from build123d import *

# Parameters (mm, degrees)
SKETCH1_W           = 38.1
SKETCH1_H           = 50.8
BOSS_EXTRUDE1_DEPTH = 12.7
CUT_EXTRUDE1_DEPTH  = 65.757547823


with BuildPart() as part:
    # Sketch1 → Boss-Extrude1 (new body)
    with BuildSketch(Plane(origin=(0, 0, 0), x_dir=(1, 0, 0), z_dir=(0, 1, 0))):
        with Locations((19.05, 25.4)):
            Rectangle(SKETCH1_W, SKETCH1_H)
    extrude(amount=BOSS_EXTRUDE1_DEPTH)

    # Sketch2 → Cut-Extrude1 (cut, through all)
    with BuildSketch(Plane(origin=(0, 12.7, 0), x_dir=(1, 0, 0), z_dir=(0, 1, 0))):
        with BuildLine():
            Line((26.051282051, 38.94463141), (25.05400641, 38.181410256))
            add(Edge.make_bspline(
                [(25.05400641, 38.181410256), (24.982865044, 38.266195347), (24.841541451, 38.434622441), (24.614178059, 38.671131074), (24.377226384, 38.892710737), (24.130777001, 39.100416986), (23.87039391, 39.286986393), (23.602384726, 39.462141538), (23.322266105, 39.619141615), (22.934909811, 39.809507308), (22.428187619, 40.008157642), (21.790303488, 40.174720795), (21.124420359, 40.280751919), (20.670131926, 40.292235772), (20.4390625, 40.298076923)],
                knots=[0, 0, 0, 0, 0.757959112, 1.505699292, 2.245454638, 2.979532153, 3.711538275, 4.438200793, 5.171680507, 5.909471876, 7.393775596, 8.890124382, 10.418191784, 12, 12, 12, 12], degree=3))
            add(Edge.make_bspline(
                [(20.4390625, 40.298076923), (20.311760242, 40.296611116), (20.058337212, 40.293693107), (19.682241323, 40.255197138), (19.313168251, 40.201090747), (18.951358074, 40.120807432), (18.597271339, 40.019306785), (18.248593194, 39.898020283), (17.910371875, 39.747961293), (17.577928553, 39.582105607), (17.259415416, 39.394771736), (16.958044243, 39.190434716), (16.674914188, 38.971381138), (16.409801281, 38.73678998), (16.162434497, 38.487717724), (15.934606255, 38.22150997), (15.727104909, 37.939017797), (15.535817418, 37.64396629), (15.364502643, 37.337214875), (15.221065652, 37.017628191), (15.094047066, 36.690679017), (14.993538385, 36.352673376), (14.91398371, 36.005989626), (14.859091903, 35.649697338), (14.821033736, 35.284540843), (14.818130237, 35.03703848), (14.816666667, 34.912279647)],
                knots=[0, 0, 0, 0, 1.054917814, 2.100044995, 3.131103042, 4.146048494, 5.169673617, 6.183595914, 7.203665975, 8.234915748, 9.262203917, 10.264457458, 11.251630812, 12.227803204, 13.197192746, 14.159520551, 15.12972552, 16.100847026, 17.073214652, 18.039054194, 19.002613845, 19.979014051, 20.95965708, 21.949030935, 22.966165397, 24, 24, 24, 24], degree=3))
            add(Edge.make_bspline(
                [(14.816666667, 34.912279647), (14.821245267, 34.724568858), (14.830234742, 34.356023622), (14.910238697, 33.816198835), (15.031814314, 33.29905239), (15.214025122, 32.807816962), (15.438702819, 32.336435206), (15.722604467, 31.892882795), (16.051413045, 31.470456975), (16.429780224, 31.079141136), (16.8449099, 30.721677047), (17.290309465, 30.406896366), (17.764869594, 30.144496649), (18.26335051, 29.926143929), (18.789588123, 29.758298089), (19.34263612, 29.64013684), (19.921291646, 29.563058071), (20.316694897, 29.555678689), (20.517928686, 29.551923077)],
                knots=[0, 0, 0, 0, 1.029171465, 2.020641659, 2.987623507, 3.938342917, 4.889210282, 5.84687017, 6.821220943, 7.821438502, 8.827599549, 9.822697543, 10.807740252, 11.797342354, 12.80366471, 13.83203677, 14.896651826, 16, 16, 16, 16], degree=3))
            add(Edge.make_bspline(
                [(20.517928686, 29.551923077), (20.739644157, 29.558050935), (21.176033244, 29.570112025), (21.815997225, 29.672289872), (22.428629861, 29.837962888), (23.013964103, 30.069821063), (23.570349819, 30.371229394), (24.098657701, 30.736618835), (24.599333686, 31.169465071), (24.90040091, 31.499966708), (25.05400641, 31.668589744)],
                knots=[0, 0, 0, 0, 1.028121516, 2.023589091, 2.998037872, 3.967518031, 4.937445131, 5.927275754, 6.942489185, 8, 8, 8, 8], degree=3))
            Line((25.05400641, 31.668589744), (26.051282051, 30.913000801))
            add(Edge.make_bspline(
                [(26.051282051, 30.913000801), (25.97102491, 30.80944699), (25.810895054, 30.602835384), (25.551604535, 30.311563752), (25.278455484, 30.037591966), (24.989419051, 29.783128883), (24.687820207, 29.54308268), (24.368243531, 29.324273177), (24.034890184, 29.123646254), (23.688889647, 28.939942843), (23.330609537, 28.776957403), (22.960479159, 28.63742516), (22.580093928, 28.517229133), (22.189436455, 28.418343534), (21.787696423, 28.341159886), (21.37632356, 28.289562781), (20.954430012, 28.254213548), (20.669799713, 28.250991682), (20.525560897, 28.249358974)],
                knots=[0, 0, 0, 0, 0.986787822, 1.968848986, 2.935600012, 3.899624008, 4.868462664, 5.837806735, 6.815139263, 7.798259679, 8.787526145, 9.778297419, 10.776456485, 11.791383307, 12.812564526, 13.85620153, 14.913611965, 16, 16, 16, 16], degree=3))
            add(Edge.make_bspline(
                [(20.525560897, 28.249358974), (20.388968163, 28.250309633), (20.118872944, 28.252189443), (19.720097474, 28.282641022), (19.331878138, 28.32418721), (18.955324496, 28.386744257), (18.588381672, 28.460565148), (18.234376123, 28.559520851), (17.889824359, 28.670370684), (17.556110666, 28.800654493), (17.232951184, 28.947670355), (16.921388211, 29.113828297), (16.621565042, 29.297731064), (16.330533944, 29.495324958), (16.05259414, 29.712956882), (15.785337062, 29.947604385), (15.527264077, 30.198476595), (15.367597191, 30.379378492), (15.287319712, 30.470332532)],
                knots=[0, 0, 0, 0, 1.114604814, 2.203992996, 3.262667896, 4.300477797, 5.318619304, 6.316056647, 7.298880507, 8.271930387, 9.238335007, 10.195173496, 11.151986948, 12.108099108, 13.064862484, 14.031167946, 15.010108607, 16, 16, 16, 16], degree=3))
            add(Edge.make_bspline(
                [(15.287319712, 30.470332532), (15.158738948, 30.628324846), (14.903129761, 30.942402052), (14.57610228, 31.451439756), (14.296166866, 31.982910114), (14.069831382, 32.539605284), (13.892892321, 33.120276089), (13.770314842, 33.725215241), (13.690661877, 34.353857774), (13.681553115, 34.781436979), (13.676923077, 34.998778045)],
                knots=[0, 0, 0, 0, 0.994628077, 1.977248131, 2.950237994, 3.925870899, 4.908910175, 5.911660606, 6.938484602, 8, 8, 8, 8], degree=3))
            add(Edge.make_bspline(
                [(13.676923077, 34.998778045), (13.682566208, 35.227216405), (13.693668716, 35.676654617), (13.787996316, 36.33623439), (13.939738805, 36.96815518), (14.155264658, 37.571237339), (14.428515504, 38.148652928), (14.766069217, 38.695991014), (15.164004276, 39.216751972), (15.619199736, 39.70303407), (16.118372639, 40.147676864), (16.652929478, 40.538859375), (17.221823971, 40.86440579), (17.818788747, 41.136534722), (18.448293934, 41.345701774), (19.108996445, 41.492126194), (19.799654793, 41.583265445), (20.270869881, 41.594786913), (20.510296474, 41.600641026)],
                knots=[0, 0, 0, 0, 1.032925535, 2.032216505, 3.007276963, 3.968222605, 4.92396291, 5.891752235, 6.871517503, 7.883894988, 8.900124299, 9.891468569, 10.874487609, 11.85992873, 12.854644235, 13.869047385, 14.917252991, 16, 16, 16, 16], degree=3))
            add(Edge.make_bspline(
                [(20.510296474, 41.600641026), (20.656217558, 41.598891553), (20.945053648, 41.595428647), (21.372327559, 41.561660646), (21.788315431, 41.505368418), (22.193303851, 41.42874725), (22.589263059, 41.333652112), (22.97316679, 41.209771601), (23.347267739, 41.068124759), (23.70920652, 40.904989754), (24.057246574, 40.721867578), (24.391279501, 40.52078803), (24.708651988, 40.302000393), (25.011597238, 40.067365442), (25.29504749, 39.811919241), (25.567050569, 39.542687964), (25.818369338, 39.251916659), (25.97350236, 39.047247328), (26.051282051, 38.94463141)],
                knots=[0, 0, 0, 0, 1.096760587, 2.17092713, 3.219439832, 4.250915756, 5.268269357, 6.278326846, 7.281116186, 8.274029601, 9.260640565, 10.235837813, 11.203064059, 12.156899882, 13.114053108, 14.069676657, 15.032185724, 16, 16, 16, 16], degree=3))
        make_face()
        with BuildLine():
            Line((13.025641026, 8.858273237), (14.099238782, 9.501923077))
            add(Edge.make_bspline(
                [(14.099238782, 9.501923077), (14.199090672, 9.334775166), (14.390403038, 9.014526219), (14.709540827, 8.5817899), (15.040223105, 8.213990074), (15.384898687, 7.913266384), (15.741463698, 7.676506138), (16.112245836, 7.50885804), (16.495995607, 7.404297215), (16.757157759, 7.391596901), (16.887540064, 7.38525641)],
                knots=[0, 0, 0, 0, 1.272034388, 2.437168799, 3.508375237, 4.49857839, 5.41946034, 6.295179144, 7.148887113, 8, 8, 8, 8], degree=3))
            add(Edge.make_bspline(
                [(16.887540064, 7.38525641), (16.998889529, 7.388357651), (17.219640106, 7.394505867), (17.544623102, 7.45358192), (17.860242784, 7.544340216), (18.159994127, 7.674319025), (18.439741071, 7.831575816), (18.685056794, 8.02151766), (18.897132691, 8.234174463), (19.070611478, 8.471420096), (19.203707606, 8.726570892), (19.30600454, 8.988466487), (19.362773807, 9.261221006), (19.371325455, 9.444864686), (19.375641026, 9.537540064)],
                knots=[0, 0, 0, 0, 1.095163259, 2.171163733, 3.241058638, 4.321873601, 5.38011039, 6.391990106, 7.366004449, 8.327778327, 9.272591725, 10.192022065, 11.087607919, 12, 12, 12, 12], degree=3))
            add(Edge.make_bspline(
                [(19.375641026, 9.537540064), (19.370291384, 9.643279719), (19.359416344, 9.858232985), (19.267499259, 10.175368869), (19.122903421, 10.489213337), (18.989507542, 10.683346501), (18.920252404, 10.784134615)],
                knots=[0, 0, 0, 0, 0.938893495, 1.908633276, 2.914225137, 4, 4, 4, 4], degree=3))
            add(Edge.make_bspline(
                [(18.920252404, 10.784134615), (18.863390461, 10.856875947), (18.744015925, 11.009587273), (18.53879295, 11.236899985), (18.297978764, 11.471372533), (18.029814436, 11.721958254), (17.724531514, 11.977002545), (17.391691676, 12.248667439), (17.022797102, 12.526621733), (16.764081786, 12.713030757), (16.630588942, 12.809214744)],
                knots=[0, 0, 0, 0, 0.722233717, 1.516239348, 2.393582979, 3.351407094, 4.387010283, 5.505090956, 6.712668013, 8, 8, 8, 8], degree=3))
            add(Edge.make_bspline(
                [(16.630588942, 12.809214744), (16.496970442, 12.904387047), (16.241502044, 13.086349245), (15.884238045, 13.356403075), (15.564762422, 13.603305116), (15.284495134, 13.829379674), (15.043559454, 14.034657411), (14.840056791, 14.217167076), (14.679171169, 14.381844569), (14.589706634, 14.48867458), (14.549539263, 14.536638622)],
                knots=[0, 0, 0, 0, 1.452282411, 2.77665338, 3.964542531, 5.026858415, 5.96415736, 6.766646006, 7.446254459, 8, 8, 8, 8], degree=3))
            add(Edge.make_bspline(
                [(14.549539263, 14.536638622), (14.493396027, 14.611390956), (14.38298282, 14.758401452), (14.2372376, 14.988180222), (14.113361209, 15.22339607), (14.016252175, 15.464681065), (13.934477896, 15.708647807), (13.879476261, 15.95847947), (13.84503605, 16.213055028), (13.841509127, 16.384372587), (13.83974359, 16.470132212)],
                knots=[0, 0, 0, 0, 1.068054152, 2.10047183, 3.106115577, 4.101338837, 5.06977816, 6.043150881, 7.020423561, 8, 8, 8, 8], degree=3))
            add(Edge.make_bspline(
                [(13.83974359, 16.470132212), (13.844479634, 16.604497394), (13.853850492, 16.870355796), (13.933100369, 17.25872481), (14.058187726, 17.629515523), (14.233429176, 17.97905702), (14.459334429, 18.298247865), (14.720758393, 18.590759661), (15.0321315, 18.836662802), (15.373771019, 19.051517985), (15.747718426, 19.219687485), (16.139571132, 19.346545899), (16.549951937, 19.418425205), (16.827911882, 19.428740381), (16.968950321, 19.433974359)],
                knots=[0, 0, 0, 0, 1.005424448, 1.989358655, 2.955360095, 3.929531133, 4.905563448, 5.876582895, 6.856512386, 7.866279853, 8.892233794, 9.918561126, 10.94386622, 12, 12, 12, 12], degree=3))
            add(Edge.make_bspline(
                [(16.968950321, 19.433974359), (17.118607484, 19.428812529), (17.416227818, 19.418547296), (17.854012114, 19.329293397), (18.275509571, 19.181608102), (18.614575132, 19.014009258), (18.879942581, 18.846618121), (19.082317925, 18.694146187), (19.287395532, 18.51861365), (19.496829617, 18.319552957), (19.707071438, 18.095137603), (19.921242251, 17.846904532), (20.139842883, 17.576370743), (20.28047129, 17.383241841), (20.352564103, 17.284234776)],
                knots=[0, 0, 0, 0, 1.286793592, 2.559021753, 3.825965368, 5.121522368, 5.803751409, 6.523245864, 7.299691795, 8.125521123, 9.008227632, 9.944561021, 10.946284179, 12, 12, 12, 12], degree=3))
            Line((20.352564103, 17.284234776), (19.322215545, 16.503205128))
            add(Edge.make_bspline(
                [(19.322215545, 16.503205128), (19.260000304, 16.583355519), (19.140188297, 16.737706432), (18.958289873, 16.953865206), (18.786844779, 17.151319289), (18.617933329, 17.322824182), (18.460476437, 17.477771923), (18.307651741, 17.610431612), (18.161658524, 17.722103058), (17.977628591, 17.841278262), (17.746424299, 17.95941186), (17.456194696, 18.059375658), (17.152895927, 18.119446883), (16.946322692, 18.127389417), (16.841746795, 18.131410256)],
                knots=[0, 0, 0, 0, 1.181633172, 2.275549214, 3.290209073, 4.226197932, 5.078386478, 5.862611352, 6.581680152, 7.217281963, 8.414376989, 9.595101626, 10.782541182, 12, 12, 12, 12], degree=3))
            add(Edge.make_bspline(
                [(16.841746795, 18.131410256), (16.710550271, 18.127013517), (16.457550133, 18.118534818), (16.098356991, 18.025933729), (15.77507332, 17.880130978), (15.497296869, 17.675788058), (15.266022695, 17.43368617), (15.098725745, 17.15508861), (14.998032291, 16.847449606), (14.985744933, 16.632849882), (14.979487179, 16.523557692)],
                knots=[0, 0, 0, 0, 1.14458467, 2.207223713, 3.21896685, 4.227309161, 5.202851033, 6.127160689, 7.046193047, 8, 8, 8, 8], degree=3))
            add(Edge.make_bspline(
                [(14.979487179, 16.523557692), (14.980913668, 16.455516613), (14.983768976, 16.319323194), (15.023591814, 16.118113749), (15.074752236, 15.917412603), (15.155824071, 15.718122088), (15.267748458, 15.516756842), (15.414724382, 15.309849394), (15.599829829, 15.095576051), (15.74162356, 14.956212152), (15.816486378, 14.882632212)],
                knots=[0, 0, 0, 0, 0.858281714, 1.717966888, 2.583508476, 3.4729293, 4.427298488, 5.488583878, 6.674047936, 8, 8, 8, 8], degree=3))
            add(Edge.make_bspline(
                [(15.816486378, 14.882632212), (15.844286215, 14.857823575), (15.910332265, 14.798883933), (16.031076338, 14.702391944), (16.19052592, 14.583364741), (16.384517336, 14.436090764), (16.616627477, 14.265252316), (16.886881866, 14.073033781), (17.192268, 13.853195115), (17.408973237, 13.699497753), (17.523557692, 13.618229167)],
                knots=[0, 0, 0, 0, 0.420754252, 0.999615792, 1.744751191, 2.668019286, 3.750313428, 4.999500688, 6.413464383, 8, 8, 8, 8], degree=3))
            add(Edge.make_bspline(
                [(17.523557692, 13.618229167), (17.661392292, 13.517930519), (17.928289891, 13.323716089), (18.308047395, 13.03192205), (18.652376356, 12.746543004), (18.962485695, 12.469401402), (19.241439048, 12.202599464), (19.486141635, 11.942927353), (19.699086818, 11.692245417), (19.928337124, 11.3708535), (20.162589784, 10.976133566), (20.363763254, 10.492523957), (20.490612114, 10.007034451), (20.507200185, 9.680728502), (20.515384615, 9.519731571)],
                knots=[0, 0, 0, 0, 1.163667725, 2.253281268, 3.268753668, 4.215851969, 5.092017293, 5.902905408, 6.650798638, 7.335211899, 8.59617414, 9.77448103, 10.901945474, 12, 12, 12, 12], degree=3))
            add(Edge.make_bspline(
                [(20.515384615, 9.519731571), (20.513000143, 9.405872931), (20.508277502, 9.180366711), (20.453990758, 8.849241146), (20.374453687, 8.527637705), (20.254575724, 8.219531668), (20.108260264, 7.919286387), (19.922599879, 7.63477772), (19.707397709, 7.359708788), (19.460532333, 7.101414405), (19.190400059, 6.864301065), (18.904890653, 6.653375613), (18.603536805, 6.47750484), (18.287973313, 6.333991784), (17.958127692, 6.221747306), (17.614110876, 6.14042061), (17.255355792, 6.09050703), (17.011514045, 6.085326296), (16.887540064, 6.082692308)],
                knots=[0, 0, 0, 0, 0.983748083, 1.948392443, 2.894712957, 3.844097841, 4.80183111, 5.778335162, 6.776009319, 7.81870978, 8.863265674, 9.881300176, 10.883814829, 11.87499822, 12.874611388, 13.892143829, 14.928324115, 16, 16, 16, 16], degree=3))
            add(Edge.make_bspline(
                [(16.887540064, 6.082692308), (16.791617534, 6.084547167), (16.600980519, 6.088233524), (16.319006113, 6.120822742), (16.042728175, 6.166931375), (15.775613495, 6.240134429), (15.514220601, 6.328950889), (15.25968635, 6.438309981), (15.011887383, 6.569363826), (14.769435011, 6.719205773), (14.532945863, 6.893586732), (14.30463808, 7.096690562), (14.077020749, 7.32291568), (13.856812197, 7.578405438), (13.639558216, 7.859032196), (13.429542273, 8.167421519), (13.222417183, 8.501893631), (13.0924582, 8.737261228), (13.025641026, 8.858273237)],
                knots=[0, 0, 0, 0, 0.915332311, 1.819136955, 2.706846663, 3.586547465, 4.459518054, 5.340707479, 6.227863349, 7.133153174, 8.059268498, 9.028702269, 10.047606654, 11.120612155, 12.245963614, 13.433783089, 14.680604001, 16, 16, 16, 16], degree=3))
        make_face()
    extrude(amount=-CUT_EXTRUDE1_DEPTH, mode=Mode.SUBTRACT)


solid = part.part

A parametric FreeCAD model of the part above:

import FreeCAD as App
import Part
import Sketcher
from FreeCAD import Vector
Q = App.Units.Quantity

doc = App.newDocument("Part")
body = doc.addObject("PartDesign::Body", "Body")

# Sketch on XZ plane
sketch1 = doc.addObject("Sketcher::SketchObject", "Sketch")
body.addObject(sketch1)
sketch1.AttachmentSupport = (doc.XZ_Plane, [""])
sketch1.MapMode = "FlatFace"
sketch1.addGeometry(Part.LineSegment(Vector(0, -51, 0), Vector(0, 0, 0)), False)
sketch1.addGeometry(Part.LineSegment(Vector(0, 0, 0), Vector(38, 0, 0)), False)
sketch1.addGeometry(Part.LineSegment(Vector(38, 0, 0), Vector(38, -51, 0)), False)
sketch1.addGeometry(Part.LineSegment(Vector(38, -51, 0), Vector(0, -51, 0)), False)
sketch1.addConstraint(Sketcher.Constraint("Coincident", 0, 2, 1, 1))
sketch1.addConstraint(Sketcher.Constraint("Coincident", 1, 2, 2, 1))
sketch1.addConstraint(Sketcher.Constraint("Coincident", 2, 2, 3, 1))
sketch1.addConstraint(Sketcher.Constraint("Coincident", 3, 2, 0, 1))
sketch1.addConstraint(Sketcher.Constraint("Vertical", 0))
sketch1.addConstraint(Sketcher.Constraint("Horizontal", 1))
sketch1.addConstraint(Sketcher.Constraint("Vertical", 2))
sketch1.addConstraint(Sketcher.Constraint("Horizontal", 3))
sketch1.addConstraint(Sketcher.Constraint("Coincident", 0, 2, -1, 1))
sketch1.addConstraint(Sketcher.Constraint("DistanceY", 0, 1, 0, 2, Q("2 in")))
sketch1.addConstraint(Sketcher.Constraint("DistanceX", 1, 1, 1, 2, Q("1.5 in")))
pad1 = doc.addObject("PartDesign::Pad", "Pad")
body.addObject(pad1)
pad1.Profile = sketch1
pad1.Length = Q("0.5 in")
pad1.Reversed = True

# Sketch on XZ plane
sketch2 = doc.addObject("Sketcher::SketchObject", "Sketch001")
body.addObject(sketch2)
sketch2.AttachmentSupport = (doc.XZ_Plane, [""])
sketch2.MapMode = "FlatFace"
sketch2.AttachmentOffset = App.Placement(Vector(0, 0, -0.5 * 25.4), App.Rotation())
sketch2.addGeometry(Part.LineSegment(Vector(25.054006, -38.18141, 0), Vector(26.051282, -38.944631, 0)), False)
sketch2.addGeometry(Part.BSplineCurve([Vector(20.510296, -41.600641, 0), Vector(20.656218, -41.598892, 0), Vector(20.945054, -41.595429, 0), Vector(21.372328, -41.561661, 0), Vector(21.788315, -41.505368, 0), Vector(22.193304, -41.428747, 0), Vector(22.589263, -41.333652, 0), Vector(22.973167, -41.209772, 0), Vector(23.347268, -41.068125, 0), Vector(23.709207, -40.90499, 0), Vector(24.057247, -40.721868, 0), Vector(24.39128, -40.520788, 0), Vector(24.708652, -40.302, 0), Vector(25.011597, -40.067365, 0), Vector(25.295047, -39.811919, 0), Vector(25.567051, -39.542688, 0), Vector(25.818369, -39.251917, 0), Vector(25.973502, -39.047247, 0), Vector(26.051282, -38.944631, 0)], [4, 1, 1, 1, 1, 1, 1, 1, 1, 1, 1, 1, 1, 1, 1, 1, 4], [0, 1.096760587, 2.17092713, 3.219439832, 4.250915756, 5.268269357, 6.278326846, 7.281116186, 8.274029601, 9.260640565, 10.235837813, 11.203064059, 12.156899882, 13.114053108, 14.069676657, 15.032185724, 16], False, 3, [1, 1, 1, 1, 1, 1, 1, 1, 1, 1, 1, 1, 1, 1, 1, 1, 1, 1, 1], False), False)
sketch2.addGeometry(Part.BSplineCurve([Vector(13.676923, -34.998778, 0), Vector(13.682566, -35.227216, 0), Vector(13.693669, -35.676655, 0), Vector(13.787996, -36.336234, 0), Vector(13.939739, -36.968155, 0), Vector(14.155265, -37.571237, 0), Vector(14.428516, -38.148653, 0), Vector(14.766069, -38.695991, 0), Vector(15.164004, -39.216752, 0), Vector(15.6192, -39.703034, 0), Vector(16.118373, -40.147677, 0), Vector(16.652929, -40.538859, 0), Vector(17.221824, -40.864406, 0), Vector(17.818789, -41.136535, 0), Vector(18.448294, -41.345702, 0), Vector(19.108996, -41.492126, 0), Vector(19.799655, -41.583265, 0), Vector(20.27087, -41.594787, 0), Vector(20.510296, -41.600641, 0)], [4, 1, 1, 1, 1, 1, 1, 1, 1, 1, 1, 1, 1, 1, 1, 1, 4], [0, 1.032925535, 2.032216505, 3.007276963, 3.968222605, 4.92396291, 5.891752235, 6.871517503, 7.883894988, 8.900124299, 9.891468569, 10.874487609, 11.85992873, 12.854644235, 13.869047385, 14.917252991, 16], False, 3, [1, 1, 1, 1, 1, 1, 1, 1, 1, 1, 1, 1, 1, 1, 1, 1, 1, 1, 1], False), False)
sketch2.addGeometry(Part.BSplineCurve([Vector(15.28732, -30.470333, 0), Vector(15.158739, -30.628325, 0), Vector(14.90313, -30.942402, 0), Vector(14.576102, -31.45144, 0), Vector(14.296167, -31.98291, 0), Vector(14.069831, -32.539605, 0), Vector(13.892892, -33.120276, 0), Vector(13.770315, -33.725215, 0), Vector(13.690662, -34.353858, 0), Vector(13.681553, -34.781437, 0), Vector(13.676923, -34.998778, 0)], [4, 1, 1, 1, 1, 1, 1, 1, 4], [0, 0.994628077, 1.977248131, 2.950237994, 3.925870899, 4.908910175, 5.911660606, 6.938484602, 8], False, 3, [1, 1, 1, 1, 1, 1, 1, 1, 1, 1, 1], False), False)
sketch2.addGeometry(Part.BSplineCurve([Vector(20.525561, -28.249359, 0), Vector(20.388968, -28.25031, 0), Vector(20.118873, -28.252189, 0), Vector(19.720097, -28.282641, 0), Vector(19.331878, -28.324187, 0), Vector(18.955324, -28.386744, 0), Vector(18.588382, -28.460565, 0), Vector(18.234376, -28.559521, 0), Vector(17.889824, -28.670371, 0), Vector(17.556111, -28.800654, 0), Vector(17.232951, -28.94767, 0), Vector(16.921388, -29.113828, 0), Vector(16.621565, -29.297731, 0), Vector(16.330534, -29.495325, 0), Vector(16.052594, -29.712957, 0), Vector(15.785337, -29.947604, 0), Vector(15.527264, -30.198477, 0), Vector(15.367597, -30.379378, 0), Vector(15.28732, -30.470333, 0)], [4, 1, 1, 1, 1, 1, 1, 1, 1, 1, 1, 1, 1, 1, 1, 1, 4], [0, 1.114604814, 2.203992996, 3.262667896, 4.300477797, 5.318619304, 6.316056647, 7.298880507, 8.271930387, 9.238335007, 10.195173496, 11.151986948, 12.108099108, 13.064862484, 14.031167946, 15.010108607, 16], False, 3, [1, 1, 1, 1, 1, 1, 1, 1, 1, 1, 1, 1, 1, 1, 1, 1, 1, 1, 1], False), False)
sketch2.addGeometry(Part.BSplineCurve([Vector(26.051282, -30.913001, 0), Vector(25.971025, -30.809447, 0), Vector(25.810895, -30.602835, 0), Vector(25.551605, -30.311564, 0), Vector(25.278455, -30.037592, 0), Vector(24.989419, -29.783129, 0), Vector(24.68782, -29.543083, 0), Vector(24.368244, -29.324273, 0), Vector(24.03489, -29.123646, 0), Vector(23.68889, -28.939943, 0), Vector(23.33061, -28.776957, 0), Vector(22.960479, -28.637425, 0), Vector(22.580094, -28.517229, 0), Vector(22.189436, -28.418344, 0), Vector(21.787696, -28.34116, 0), Vector(21.376324, -28.289563, 0), Vector(20.95443, -28.254214, 0), Vector(20.6698, -28.250992, 0), Vector(20.525561, -28.249359, 0)], [4, 1, 1, 1, 1, 1, 1, 1, 1, 1, 1, 1, 1, 1, 1, 1, 4], [0, 0.986787822, 1.968848986, 2.935600012, 3.899624008, 4.868462664, 5.837806735, 6.815139263, 7.798259679, 8.787526145, 9.778297419, 10.776456485, 11.791383307, 12.812564526, 13.85620153, 14.913611965, 16], False, 3, [1, 1, 1, 1, 1, 1, 1, 1, 1, 1, 1, 1, 1, 1, 1, 1, 1, 1, 1], False), False)
sketch2.addGeometry(Part.LineSegment(Vector(26.051282, -30.913001, 0), Vector(25.054006, -31.66859, 0)), False)
sketch2.addGeometry(Part.BSplineCurve([Vector(20.517929, -29.551923, 0), Vector(20.739644, -29.558051, 0), Vector(21.176033, -29.570112, 0), Vector(21.815997, -29.67229, 0), Vector(22.42863, -29.837963, 0), Vector(23.013964, -30.069821, 0), Vector(23.57035, -30.371229, 0), Vector(24.098658, -30.736619, 0), Vector(24.599334, -31.169465, 0), Vector(24.900401, -31.499967, 0), Vector(25.054006, -31.66859, 0)], [4, 1, 1, 1, 1, 1, 1, 1, 4], [0, 1.028121516, 2.023589091, 2.998037872, 3.967518031, 4.937445131, 5.927275754, 6.942489185, 8], False, 3, [1, 1, 1, 1, 1, 1, 1, 1, 1, 1, 1], False), False)
sketch2.addGeometry(Part.BSplineCurve([Vector(14.816667, -34.91228, 0), Vector(14.821245, -34.724569, 0), Vector(14.830235, -34.356024, 0), Vector(14.910239, -33.816199, 0), Vector(15.031814, -33.299052, 0), Vector(15.214025, -32.807817, 0), Vector(15.438703, -32.336435, 0), Vector(15.722604, -31.892883, 0), Vector(16.051413, -31.470457, 0), Vector(16.42978, -31.079141, 0), Vector(16.84491, -30.721677, 0), Vector(17.290309, -30.406896, 0), Vector(17.76487, -30.144497, 0), Vector(18.263351, -29.926144, 0), Vector(18.789588, -29.758298, 0), Vector(19.342636, -29.640137, 0), Vector(19.921292, -29.563058, 0), Vector(20.316695, -29.555679, 0), Vector(20.517929, -29.551923, 0)], [4, 1, 1, 1, 1, 1, 1, 1, 1, 1, 1, 1, 1, 1, 1, 1, 4], [0, 1.029171465, 2.020641659, 2.987623507, 3.938342917, 4.889210282, 5.84687017, 6.821220943, 7.821438502, 8.827599549, 9.822697543, 10.807740252, 11.797342354, 12.80366471, 13.83203677, 14.896651826, 16], False, 3, [1, 1, 1, 1, 1, 1, 1, 1, 1, 1, 1, 1, 1, 1, 1, 1, 1, 1, 1], False), False)
sketch2.addGeometry(Part.BSplineCurve([Vector(20.439062, -40.298077, 0), Vector(20.31176, -40.296611, 0), Vector(20.058337, -40.293693, 0), Vector(19.682241, -40.255197, 0), Vector(19.313168, -40.201091, 0), Vector(18.951358, -40.120807, 0), Vector(18.597271, -40.019307, 0), Vector(18.248593, -39.89802, 0), Vector(17.910372, -39.747961, 0), Vector(17.577929, -39.582106, 0), Vector(17.259415, -39.394772, 0), Vector(16.958044, -39.190435, 0), Vector(16.674914, -38.971381, 0), Vector(16.409801, -38.73679, 0), Vector(16.162434, -38.487718, 0), Vector(15.934606, -38.22151, 0), Vector(15.727105, -37.939018, 0), Vector(15.535817, -37.643966, 0), Vector(15.364503, -37.337215, 0), Vector(15.221066, -37.017628, 0), Vector(15.094047, -36.690679, 0), Vector(14.993538, -36.352673, 0), Vector(14.913984, -36.00599, 0), Vector(14.859092, -35.649697, 0), Vector(14.821034, -35.284541, 0), Vector(14.81813, -35.037038, 0), Vector(14.816667, -34.91228, 0)], [4, 1, 1, 1, 1, 1, 1, 1, 1, 1, 1, 1, 1, 1, 1, 1, 1, 1, 1, 1, 1, 1, 1, 1, 4], [0, 1.054917814, 2.100044995, 3.131103042, 4.146048494, 5.169673617, 6.183595914, 7.203665975, 8.234915748, 9.262203917, 10.264457458, 11.251630812, 12.227803204, 13.197192746, 14.159520551, 15.12972552, 16.100847026, 17.073214652, 18.039054194, 19.002613845, 19.979014051, 20.95965708, 21.949030935, 22.966165397, 24], False, 3, [1, 1, 1, 1, 1, 1, 1, 1, 1, 1, 1, 1, 1, 1, 1, 1, 1, 1, 1, 1, 1, 1, 1, 1, 1, 1, 1], False), False)
sketch2.addGeometry(Part.BSplineCurve([Vector(25.054006, -38.18141, 0), Vector(24.982865, -38.266195, 0), Vector(24.841541, -38.434622, 0), Vector(24.614178, -38.671131, 0), Vector(24.377226, -38.892711, 0), Vector(24.130777, -39.100417, 0), Vector(23.870394, -39.286986, 0), Vector(23.602385, -39.462142, 0), Vector(23.322266, -39.619142, 0), Vector(22.93491, -39.809507, 0), Vector(22.428188, -40.008158, 0), Vector(21.790303, -40.174721, 0), Vector(21.12442, -40.280752, 0), Vector(20.670132, -40.292236, 0), Vector(20.439062, -40.298077, 0)], [4, 1, 1, 1, 1, 1, 1, 1, 1, 1, 1, 1, 4], [0, 0.757959112, 1.505699292, 2.245454638, 2.979532153, 3.711538275, 4.438200793, 5.171680507, 5.909471876, 7.393775596, 8.890124382, 10.418191784, 12], False, 3, [1, 1, 1, 1, 1, 1, 1, 1, 1, 1, 1, 1, 1, 1, 1], False), False)
sketch2.addGeometry(Part.LineSegment(Vector(14.099239, -9.501923, 0), Vector(13.025641, -8.858273, 0)), False)
sketch2.addGeometry(Part.BSplineCurve([Vector(16.88754, -6.082692, 0), Vector(16.791618, -6.084547, 0), Vector(16.600981, -6.088234, 0), Vector(16.319006, -6.120823, 0), Vector(16.042728, -6.166931, 0), Vector(15.775613, -6.240134, 0), Vector(15.514221, -6.328951, 0), Vector(15.259686, -6.43831, 0), Vector(15.011887, -6.569364, 0), Vector(14.769435, -6.719206, 0), Vector(14.532946, -6.893587, 0), Vector(14.304638, -7.096691, 0), Vector(14.077021, -7.322916, 0), Vector(13.856812, -7.578405, 0), Vector(13.639558, -7.859032, 0), Vector(13.429542, -8.167422, 0), Vector(13.222417, -8.501894, 0), Vector(13.092458, -8.737261, 0), Vector(13.025641, -8.858273, 0)], [4, 1, 1, 1, 1, 1, 1, 1, 1, 1, 1, 1, 1, 1, 1, 1, 4], [0, 0.915332311, 1.819136955, 2.706846663, 3.586547465, 4.459518054, 5.340707479, 6.227863349, 7.133153174, 8.059268498, 9.028702269, 10.047606654, 11.120612155, 12.245963614, 13.433783089, 14.680604001, 16], False, 3, [1, 1, 1, 1, 1, 1, 1, 1, 1, 1, 1, 1, 1, 1, 1, 1, 1, 1, 1], False), False)
sketch2.addGeometry(Part.BSplineCurve([Vector(20.515385, -9.519732, 0), Vector(20.513, -9.405873, 0), Vector(20.508278, -9.180367, 0), Vector(20.453991, -8.849241, 0), Vector(20.374454, -8.527638, 0), Vector(20.254576, -8.219532, 0), Vector(20.10826, -7.919286, 0), Vector(19.9226, -7.634778, 0), Vector(19.707398, -7.359709, 0), Vector(19.460532, -7.101414, 0), Vector(19.1904, -6.864301, 0), Vector(18.904891, -6.653376, 0), Vector(18.603537, -6.477505, 0), Vector(18.287973, -6.333992, 0), Vector(17.958128, -6.221747, 0), Vector(17.614111, -6.140421, 0), Vector(17.255356, -6.090507, 0), Vector(17.011514, -6.085326, 0), Vector(16.88754, -6.082692, 0)], [4, 1, 1, 1, 1, 1, 1, 1, 1, 1, 1, 1, 1, 1, 1, 1, 4], [0, 0.983748083, 1.948392443, 2.894712957, 3.844097841, 4.80183111, 5.778335162, 6.776009319, 7.81870978, 8.863265674, 9.881300176, 10.883814829, 11.87499822, 12.874611388, 13.892143829, 14.928324115, 16], False, 3, [1, 1, 1, 1, 1, 1, 1, 1, 1, 1, 1, 1, 1, 1, 1, 1, 1, 1, 1], False), False)
sketch2.addGeometry(Part.BSplineCurve([Vector(17.523558, -13.618229, 0), Vector(17.661392, -13.517931, 0), Vector(17.92829, -13.323716, 0), Vector(18.308047, -13.031922, 0), Vector(18.652376, -12.746543, 0), Vector(18.962486, -12.469401, 0), Vector(19.241439, -12.202599, 0), Vector(19.486142, -11.942927, 0), Vector(19.699087, -11.692245, 0), Vector(19.928337, -11.370854, 0), Vector(20.16259, -10.976134, 0), Vector(20.363763, -10.492524, 0), Vector(20.490612, -10.007034, 0), Vector(20.5072, -9.680729, 0), Vector(20.515385, -9.519732, 0)], [4, 1, 1, 1, 1, 1, 1, 1, 1, 1, 1, 1, 4], [0, 1.163667725, 2.253281268, 3.268753668, 4.215851969, 5.092017293, 5.902905408, 6.650798638, 7.335211899, 8.59617414, 9.77448103, 10.901945474, 12], False, 3, [1, 1, 1, 1, 1, 1, 1, 1, 1, 1, 1, 1, 1, 1, 1], False), False)
sketch2.addGeometry(Part.BSplineCurve([Vector(15.816486, -14.882632, 0), Vector(15.844286, -14.857824, 0), Vector(15.910332, -14.798884, 0), Vector(16.031076, -14.702392, 0), Vector(16.190526, -14.583365, 0), Vector(16.384517, -14.436091, 0), Vector(16.616627, -14.265252, 0), Vector(16.886882, -14.073034, 0), Vector(17.192268, -13.853195, 0), Vector(17.408973, -13.699498, 0), Vector(17.523558, -13.618229, 0)], [4, 1, 1, 1, 1, 1, 1, 1, 4], [0, 0.420754252, 0.999615792, 1.744751191, 2.668019286, 3.750313428, 4.999500688, 6.413464383, 8], False, 3, [1, 1, 1, 1, 1, 1, 1, 1, 1, 1, 1], False), False)
sketch2.addGeometry(Part.BSplineCurve([Vector(14.979487, -16.523558, 0), Vector(14.980914, -16.455517, 0), Vector(14.983769, -16.319323, 0), Vector(15.023592, -16.118114, 0), Vector(15.074752, -15.917413, 0), Vector(15.155824, -15.718122, 0), Vector(15.267748, -15.516757, 0), Vector(15.414724, -15.309849, 0), Vector(15.59983, -15.095576, 0), Vector(15.741624, -14.956212, 0), Vector(15.816486, -14.882632, 0)], [4, 1, 1, 1, 1, 1, 1, 1, 4], [0, 0.858281714, 1.717966888, 2.583508476, 3.4729293, 4.427298488, 5.488583878, 6.674047936, 8], False, 3, [1, 1, 1, 1, 1, 1, 1, 1, 1, 1, 1], False), False)
sketch2.addGeometry(Part.BSplineCurve([Vector(16.841747, -18.13141, 0), Vector(16.71055, -18.127014, 0), Vector(16.45755, -18.118535, 0), Vector(16.098357, -18.025934, 0), Vector(15.775073, -17.880131, 0), Vector(15.497297, -17.675788, 0), Vector(15.266023, -17.433686, 0), Vector(15.098726, -17.155089, 0), Vector(14.998032, -16.84745, 0), Vector(14.985745, -16.63285, 0), Vector(14.979487, -16.523558, 0)], [4, 1, 1, 1, 1, 1, 1, 1, 4], [0, 1.14458467, 2.207223713, 3.21896685, 4.227309161, 5.202851033, 6.127160689, 7.046193047, 8], False, 3, [1, 1, 1, 1, 1, 1, 1, 1, 1, 1, 1], False), False)
sketch2.addGeometry(Part.BSplineCurve([Vector(19.322216, -16.503205, 0), Vector(19.26, -16.583356, 0), Vector(19.140188, -16.737706, 0), Vector(18.95829, -16.953865, 0), Vector(18.786845, -17.151319, 0), Vector(18.617933, -17.322824, 0), Vector(18.460476, -17.477772, 0), Vector(18.307652, -17.610432, 0), Vector(18.161659, -17.722103, 0), Vector(17.977629, -17.841278, 0), Vector(17.746424, -17.959412, 0), Vector(17.456195, -18.059376, 0), Vector(17.152896, -18.119447, 0), Vector(16.946323, -18.127389, 0), Vector(16.841747, -18.13141, 0)], [4, 1, 1, 1, 1, 1, 1, 1, 1, 1, 1, 1, 4], [0, 1.181633172, 2.275549214, 3.290209073, 4.226197932, 5.078386478, 5.862611352, 6.581680152, 7.217281963, 8.414376989, 9.595101626, 10.782541182, 12], False, 3, [1, 1, 1, 1, 1, 1, 1, 1, 1, 1, 1, 1, 1, 1, 1], False), False)
sketch2.addGeometry(Part.LineSegment(Vector(19.322216, -16.503205, 0), Vector(20.352564, -17.284235, 0)), False)
sketch2.addGeometry(Part.BSplineCurve([Vector(16.96895, -19.433974, 0), Vector(17.118607, -19.428813, 0), Vector(17.416228, -19.418547, 0), Vector(17.854012, -19.329293, 0), Vector(18.27551, -19.181608, 0), Vector(18.614575, -19.014009, 0), Vector(18.879943, -18.846618, 0), Vector(19.082318, -18.694146, 0), Vector(19.287396, -18.518614, 0), Vector(19.49683, -18.319553, 0), Vector(19.707071, -18.095138, 0), Vector(19.921242, -17.846905, 0), Vector(20.139843, -17.576371, 0), Vector(20.280471, -17.383242, 0), Vector(20.352564, -17.284235, 0)], [4, 1, 1, 1, 1, 1, 1, 1, 1, 1, 1, 1, 4], [0, 1.286793592, 2.559021753, 3.825965368, 5.121522368, 5.803751409, 6.523245864, 7.299691795, 8.125521123, 9.008227632, 9.944561021, 10.946284179, 12], False, 3, [1, 1, 1, 1, 1, 1, 1, 1, 1, 1, 1, 1, 1, 1, 1], False), False)
sketch2.addGeometry(Part.BSplineCurve([Vector(13.839744, -16.470132, 0), Vector(13.84448, -16.604497, 0), Vector(13.85385, -16.870356, 0), Vector(13.9331, -17.258725, 0), Vector(14.058188, -17.629516, 0), Vector(14.233429, -17.979057, 0), Vector(14.459334, -18.298248, 0), Vector(14.720758, -18.59076, 0), Vector(15.032132, -18.836663, 0), Vector(15.373771, -19.051518, 0), Vector(15.747718, -19.219687, 0), Vector(16.139571, -19.346546, 0), Vector(16.549952, -19.418425, 0), Vector(16.827912, -19.42874, 0), Vector(16.96895, -19.433974, 0)], [4, 1, 1, 1, 1, 1, 1, 1, 1, 1, 1, 1, 4], [0, 1.005424448, 1.989358655, 2.955360095, 3.929531133, 4.905563448, 5.876582895, 6.856512386, 7.866279853, 8.892233794, 9.918561126, 10.94386622, 12], False, 3, [1, 1, 1, 1, 1, 1, 1, 1, 1, 1, 1, 1, 1, 1, 1], False), False)
sketch2.addGeometry(Part.BSplineCurve([Vector(14.549539, -14.536639, 0), Vector(14.493396, -14.611391, 0), Vector(14.382983, -14.758401, 0), Vector(14.237238, -14.98818, 0), Vector(14.113361, -15.223396, 0), Vector(14.016252, -15.464681, 0), Vector(13.934478, -15.708648, 0), Vector(13.879476, -15.958479, 0), Vector(13.845036, -16.213055, 0), Vector(13.841509, -16.384373, 0), Vector(13.839744, -16.470132, 0)], [4, 1, 1, 1, 1, 1, 1, 1, 4], [0, 1.068054152, 2.10047183, 3.106115577, 4.101338837, 5.06977816, 6.043150881, 7.020423561, 8], False, 3, [1, 1, 1, 1, 1, 1, 1, 1, 1, 1, 1], False), False)
sketch2.addGeometry(Part.BSplineCurve([Vector(16.630589, -12.809215, 0), Vector(16.49697, -12.904387, 0), Vector(16.241502, -13.086349, 0), Vector(15.884238, -13.356403, 0), Vector(15.564762, -13.603305, 0), Vector(15.284495, -13.82938, 0), Vector(15.043559, -14.034657, 0), Vector(14.840057, -14.217167, 0), Vector(14.679171, -14.381845, 0), Vector(14.589707, -14.488675, 0), Vector(14.549539, -14.536639, 0)], [4, 1, 1, 1, 1, 1, 1, 1, 4], [0, 1.452282411, 2.77665338, 3.964542531, 5.026858415, 5.96415736, 6.766646006, 7.446254459, 8], False, 3, [1, 1, 1, 1, 1, 1, 1, 1, 1, 1, 1], False), False)
sketch2.addGeometry(Part.BSplineCurve([Vector(18.920252, -10.784135, 0), Vector(18.86339, -10.856876, 0), Vector(18.744016, -11.009587, 0), Vector(18.538793, -11.2369, 0), Vector(18.297979, -11.471373, 0), Vector(18.029814, -11.721958, 0), Vector(17.724532, -11.977003, 0), Vector(17.391692, -12.248667, 0), Vector(17.022797, -12.526622, 0), Vector(16.764082, -12.713031, 0), Vector(16.630589, -12.809215, 0)], [4, 1, 1, 1, 1, 1, 1, 1, 4], [0, 0.722233717, 1.516239348, 2.393582979, 3.351407094, 4.387010283, 5.505090956, 6.712668013, 8], False, 3, [1, 1, 1, 1, 1, 1, 1, 1, 1, 1, 1], False), False)
sketch2.addGeometry(Part.BSplineCurve([Vector(19.375641, -9.53754, 0), Vector(19.370291, -9.64328, 0), Vector(19.359416, -9.858233, 0), Vector(19.267499, -10.175369, 0), Vector(19.122903, -10.489213, 0), Vector(18.989508, -10.683347, 0), Vector(18.920252, -10.784135, 0)], [4, 1, 1, 1, 4], [0, 0.938893495, 1.908633276, 2.914225137, 4], False, 3, [1, 1, 1, 1, 1, 1, 1], False), False)
sketch2.addGeometry(Part.BSplineCurve([Vector(16.88754, -7.385256, 0), Vector(16.99889, -7.388358, 0), Vector(17.21964, -7.394506, 0), Vector(17.544623, -7.453582, 0), Vector(17.860243, -7.54434, 0), Vector(18.159994, -7.674319, 0), Vector(18.439741, -7.831576, 0), Vector(18.685057, -8.021518, 0), Vector(18.897133, -8.234174, 0), Vector(19.070611, -8.47142, 0), Vector(19.203708, -8.726571, 0), Vector(19.306005, -8.988466, 0), Vector(19.362774, -9.261221, 0), Vector(19.371325, -9.444865, 0), Vector(19.375641, -9.53754, 0)], [4, 1, 1, 1, 1, 1, 1, 1, 1, 1, 1, 1, 4], [0, 1.095163259, 2.171163733, 3.241058638, 4.321873601, 5.38011039, 6.391990106, 7.366004449, 8.327778327, 9.272591725, 10.192022065, 11.087607919, 12], False, 3, [1, 1, 1, 1, 1, 1, 1, 1, 1, 1, 1, 1, 1, 1, 1], False), False)
sketch2.addGeometry(Part.BSplineCurve([Vector(14.099239, -9.501923, 0), Vector(14.199091, -9.334775, 0), Vector(14.390403, -9.014526, 0), Vector(14.709541, -8.58179, 0), Vector(15.040223, -8.21399, 0), Vector(15.384899, -7.913266, 0), Vector(15.741464, -7.676506, 0), Vector(16.112246, -7.508858, 0), Vector(16.495996, -7.404297, 0), Vector(16.757158, -7.391597, 0), Vector(16.88754, -7.385256, 0)], [4, 1, 1, 1, 1, 1, 1, 1, 4], [0, 1.272034388, 2.437168799, 3.508375237, 4.49857839, 5.41946034, 6.295179144, 7.148887113, 8], False, 3, [1, 1, 1, 1, 1, 1, 1, 1, 1, 1, 1], False), False)
sketch2.addConstraint(Sketcher.Constraint("Block", 1))
sketch2.addConstraint(Sketcher.Constraint("Block", 2))
sketch2.addConstraint(Sketcher.Constraint("Block", 3))
sketch2.addConstraint(Sketcher.Constraint("Block", 4))
sketch2.addConstraint(Sketcher.Constraint("Block", 5))
sketch2.addConstraint(Sketcher.Constraint("Block", 7))
sketch2.addConstraint(Sketcher.Constraint("Block", 8))
sketch2.addConstraint(Sketcher.Constraint("Block", 9))
sketch2.addConstraint(Sketcher.Constraint("Block", 10))
sketch2.addConstraint(Sketcher.Constraint("Block", 12))
sketch2.addConstraint(Sketcher.Constraint("Block", 13))
sketch2.addConstraint(Sketcher.Constraint("Block", 14))
sketch2.addConstraint(Sketcher.Constraint("Block", 15))
sketch2.addConstraint(Sketcher.Constraint("Block", 16))
sketch2.addConstraint(Sketcher.Constraint("Block", 17))
sketch2.addConstraint(Sketcher.Constraint("Block", 18))
sketch2.addConstraint(Sketcher.Constraint("Block", 20))
sketch2.addConstraint(Sketcher.Constraint("Block", 21))
sketch2.addConstraint(Sketcher.Constraint("Block", 22))
sketch2.addConstraint(Sketcher.Constraint("Block", 23))
sketch2.addConstraint(Sketcher.Constraint("Block", 24))
sketch2.addConstraint(Sketcher.Constraint("Block", 25))
sketch2.addConstraint(Sketcher.Constraint("Block", 26))
sketch2.addConstraint(Sketcher.Constraint("Block", 27))
sketch2.addConstraint(Sketcher.Constraint("Coincident", 0, 2, 1, 2))
sketch2.addConstraint(Sketcher.Constraint("Coincident", 5, 1, 6, 1))
sketch2.addConstraint(Sketcher.Constraint("Coincident", 6, 2, 7, 2))
sketch2.addConstraint(Sketcher.Constraint("Coincident", 10, 1, 0, 1))
sketch2.addConstraint(Sketcher.Constraint("Coincident", 11, 2, 12, 2))
sketch2.addConstraint(Sketcher.Constraint("Coincident", 18, 1, 19, 1))
sketch2.addConstraint(Sketcher.Constraint("Coincident", 19, 2, 20, 2))
sketch2.addConstraint(Sketcher.Constraint("Coincident", 27, 1, 11, 1))
pocket1 = doc.addObject("PartDesign::Pocket", "Pocket")
body.addObject(pocket1)
pocket1.Profile = sketch2
pocket1.Type = "ThroughAll"
pocket1.Reversed = True

doc.recompute()
